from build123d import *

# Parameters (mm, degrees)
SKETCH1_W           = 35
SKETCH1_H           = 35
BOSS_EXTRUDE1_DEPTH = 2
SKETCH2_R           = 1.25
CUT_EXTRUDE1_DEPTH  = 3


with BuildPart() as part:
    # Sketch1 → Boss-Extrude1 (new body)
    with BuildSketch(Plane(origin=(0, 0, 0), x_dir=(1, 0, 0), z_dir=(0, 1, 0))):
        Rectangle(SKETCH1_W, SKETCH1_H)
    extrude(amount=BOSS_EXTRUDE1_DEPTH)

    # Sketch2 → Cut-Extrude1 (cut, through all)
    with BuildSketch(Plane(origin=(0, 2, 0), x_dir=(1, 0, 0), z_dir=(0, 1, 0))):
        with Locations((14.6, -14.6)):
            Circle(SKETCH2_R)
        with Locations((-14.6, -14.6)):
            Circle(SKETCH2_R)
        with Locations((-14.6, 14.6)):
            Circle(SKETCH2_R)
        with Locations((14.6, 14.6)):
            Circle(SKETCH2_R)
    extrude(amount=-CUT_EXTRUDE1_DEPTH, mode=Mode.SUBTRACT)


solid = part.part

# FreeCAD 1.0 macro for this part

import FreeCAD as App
import Part
import Sketcher


def add_polygon(sketch, points):
    """Adds a closed chain of lines whose ends are joined by coincident constraints."""
    first, n = sketch.GeometryCount, len(points)
    for a, b in zip(points, points[1:] + points[:1]):
        sketch.addGeometry(Part.LineSegment(App.Vector(*a, 0), App.Vector(*b, 0)), False)
    for i in range(n):
        sketch.addConstraint(Sketcher.Constraint("Coincident", first + i, 2, first + (i + 1) % n, 1))

doc = App.newDocument("Part")
params = doc.addObject("Spreadsheet::Sheet", "Params")
for row, (alias, value) in enumerate([
    ("sketch1_width", "35 mm"),
    ("pad1_length", "2 mm"),
    ("sketch2_diameter", "2.5 mm"),
], start=1):
    params.set(f"A{row}", alias)
    params.set(f"B{row}", "=" + value)
    params.setAlias(f"B{row}", alias)

body = doc.addObject("PartDesign::Body", "Body")

# Sketch on XZ plane
sketch1 = body.newObject("Sketcher::SketchObject", "Sketch")
sketch1.AttachmentSupport = (doc.getObject("XZ_Plane"), [""])
sketch1.MapMode = "FlatFace"
add_polygon(sketch1, [(-17.5, -17.5), (-17.5, 17.5), (17.5, 17.5), (17.5, -17.5)])  # lines 0-3
sketch1.addConstraint(Sketcher.Constraint("Vertical", 0))
sketch1.addConstraint(Sketcher.Constraint("Horizontal", 1))
sketch1.addConstraint(Sketcher.Constraint("Vertical", 2))
sketch1.addConstraint(Sketcher.Constraint("Horizontal", 3))
sketch1.addConstraint(Sketcher.Constraint("Symmetric", 0, 2, 2, 2, -1, 1))
sketch1.addConstraint(Sketcher.Constraint("Equal", 3, 0))
sketch1.addConstraint(Sketcher.Constraint("DistanceX", 1, 1, 1, 2, 35.0))
sketch1.setExpression("Constraints[10]", "Params.sketch1_width")
pad1 = body.newObject("PartDesign::Pad", "Pad")
pad1.Profile = sketch1
pad1.setExpression("Length", "Params.pad1_length")
pad1.Reversed = True

# Sketch on XZ plane
sketch2 = body.newObject("Sketcher::SketchObject", "Sketch001")
sketch2.AttachmentSupport = (doc.getObject("XZ_Plane"), [""])
sketch2.MapMode = "FlatFace"
sketch2.AttachmentOffset = App.Placement(App.Vector(0, 0, -2), App.Rotation())
sketch2.addGeometry(Part.Circle(App.Vector(14.6, 14.6, 0), App.Vector(0, 0, 1), 1.25), False)
sketch2.addGeometry(Part.Circle(App.Vector(-14.6, 14.6, 0), App.Vector(0, 0, 1), 1.25), False)
sketch2.addGeometry(Part.Circle(App.Vector(-14.6, -14.6, 0), App.Vector(0, 0, 1), 1.25), False)
sketch2.addGeometry(Part.Circle(App.Vector(14.6, -14.6, 0), App.Vector(0, 0, 1), 1.25), False)
sketch2.addConstraint(Sketcher.Constraint("Equal", 0, 1))
sketch2.addConstraint(Sketcher.Constraint("Equal", 1, 2))
sketch2.addConstraint(Sketcher.Constraint("Equal", 2, 3))
sketch2.addConstraint(Sketcher.Constraint("Symmetric", 0, 3, 2, 3, -1, 1))
sketch2.addConstraint(Sketcher.Constraint("Symmetric", 1, 3, 3, 3, -1, 1))
sketch2.addConstraint(Sketcher.Constraint("Symmetric", 0, 3, 1, 3, -2))
sketch2.addConstraint(Sketcher.Constraint("Diameter", 0, 2.5))
sketch2.addConstraint(Sketcher.Constraint("DistanceX", -1, 1, 0, 3, 14.6))
sketch2.addConstraint(Sketcher.Constraint("DistanceY", -1, 1, 0, 3, 14.6))
sketch2.setExpression("Constraints[6]", "Params.sketch2_diameter")
pocket1 = body.newObject("PartDesign::Pocket", "Pocket")
pocket1.Profile = sketch2
pocket1.Type = "ThroughAll"
pocket1.Reversed = True

doc.recompute()
